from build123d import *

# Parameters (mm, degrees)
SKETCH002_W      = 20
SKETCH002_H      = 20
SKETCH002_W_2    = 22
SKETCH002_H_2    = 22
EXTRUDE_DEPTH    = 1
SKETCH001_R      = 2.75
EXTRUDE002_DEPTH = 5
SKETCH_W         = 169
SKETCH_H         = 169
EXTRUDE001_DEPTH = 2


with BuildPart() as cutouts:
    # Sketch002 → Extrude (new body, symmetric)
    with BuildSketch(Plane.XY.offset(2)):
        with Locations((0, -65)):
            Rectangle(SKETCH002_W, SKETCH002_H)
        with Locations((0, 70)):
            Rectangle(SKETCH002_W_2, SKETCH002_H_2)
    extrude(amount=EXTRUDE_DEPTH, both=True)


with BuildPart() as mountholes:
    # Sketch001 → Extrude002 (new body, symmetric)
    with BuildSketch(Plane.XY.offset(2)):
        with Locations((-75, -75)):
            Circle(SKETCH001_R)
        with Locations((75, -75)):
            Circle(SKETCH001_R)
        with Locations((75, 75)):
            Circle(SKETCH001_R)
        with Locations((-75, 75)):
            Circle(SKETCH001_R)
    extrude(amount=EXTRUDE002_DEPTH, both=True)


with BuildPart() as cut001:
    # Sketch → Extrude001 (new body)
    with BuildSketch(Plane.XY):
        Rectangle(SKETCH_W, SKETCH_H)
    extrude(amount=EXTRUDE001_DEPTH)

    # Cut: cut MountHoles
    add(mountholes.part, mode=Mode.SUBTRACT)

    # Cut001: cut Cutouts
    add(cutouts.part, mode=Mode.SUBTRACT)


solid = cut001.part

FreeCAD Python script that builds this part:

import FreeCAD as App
import Part
import Sketcher
from FreeCAD import Vector

doc = App.newDocument("Part")
body = doc.addObject("PartDesign::Body", "Body")
body.AllowCompound = True

# Sketch on XY plane
sketch1 = body.newObject("Sketcher::SketchObject", "Sketch")
sketch1.AttachmentSupport = (doc.getObject("XY_Plane"), [""])
sketch1.MapMode = "FlatFace"
sketch1.AttachmentOffset = App.Placement(Vector(0, 0, 2), App.Rotation())
sketch1.addGeometry([
    Part.LineSegment(Vector(-10, -55, 0), Vector(-10, -75, 0)),  # 0
    Part.LineSegment(Vector(-10, -75, 0), Vector(10, -75, 0)),  # 1
    Part.LineSegment(Vector(10, -75, 0), Vector(10, -55, 0)),  # 2
    Part.LineSegment(Vector(10, -55, 0), Vector(-10, -55, 0)),  # 3
    Part.LineSegment(Vector(-11, 81, 0), Vector(-11, 59, 0)),  # 4
    Part.LineSegment(Vector(-11, 59, 0), Vector(11, 59, 0)),  # 5
    Part.LineSegment(Vector(11, 59, 0), Vector(11, 81, 0)),  # 6
    Part.LineSegment(Vector(11, 81, 0), Vector(-11, 81, 0)),  # 7
], False)
sketch1.addConstraint([
    Sketcher.Constraint("Coincident", 0, 2, 1, 1),
    Sketcher.Constraint("Coincident", 1, 2, 2, 1),
    Sketcher.Constraint("Coincident", 2, 2, 3, 1),
    Sketcher.Constraint("Coincident", 3, 2, 0, 1),
    Sketcher.Constraint("Coincident", 4, 2, 5, 1),
    Sketcher.Constraint("Coincident", 5, 2, 6, 1),
    Sketcher.Constraint("Coincident", 6, 2, 7, 1),
    Sketcher.Constraint("Coincident", 7, 2, 4, 1),
    Sketcher.Constraint("Vertical", 0),
    Sketcher.Constraint("Horizontal", 1),
    Sketcher.Constraint("Vertical", 2),
    Sketcher.Constraint("Horizontal", 3),
    Sketcher.Constraint("Vertical", 4),
    Sketcher.Constraint("Horizontal", 5),
    Sketcher.Constraint("Vertical", 6),
    Sketcher.Constraint("Horizontal", 7),
    Sketcher.Constraint("Equal", 3, 0),
    Sketcher.Constraint("Equal", 7, 4),
    Sketcher.Constraint("DistanceX", 1, 1, 1, 2, 20.0),
    Sketcher.Constraint("DistanceX", 5, 1, 5, 2, 22.0),
    Sketcher.Constraint("DistanceX", 0, 2, -1, 1, 10.0),
    Sketcher.Constraint("DistanceY", 0, 2, -1, 1, 75.0),
    Sketcher.Constraint("DistanceX", 4, 2, -1, 1, 11.0),
    Sketcher.Constraint("DistanceY", -1, 1, 4, 2, 59.0),
])
pad1 = body.newObject("PartDesign::Pad", "Pad")
pad1.Profile = sketch1
pad1.Length = 2
pad1.Midplane = True
body2 = doc.addObject("PartDesign::Body", "Body001")
body2.AllowCompound = True

# Sketch on XY plane
sketch2 = body2.newObject("Sketcher::SketchObject", "Sketch001")
sketch2.AttachmentSupport = (doc.getObject("XY_Plane001"), [""])
sketch2.MapMode = "FlatFace"
sketch2.AttachmentOffset = App.Placement(Vector(0, 0, 2), App.Rotation())
sketch2.addGeometry([
    Part.Circle(Vector(-75, -75, 0), Vector(0, 0, 1), 2.8),
    Part.Circle(Vector(75, -75, 0), Vector(0, 0, 1), 2.8),
    Part.Circle(Vector(75, 75, 0), Vector(0, 0, 1), 2.8),
    Part.Circle(Vector(-75, 75, 0), Vector(0, 0, 1), 2.8),
], False)
sketch2.addConstraint([
    Sketcher.Constraint("Equal", 0, 1),
    Sketcher.Constraint("Equal", 1, 2),
    Sketcher.Constraint("Equal", 2, 3),
    Sketcher.Constraint("Symmetric", 0, 3, 2, 3, -1, 1),
    Sketcher.Constraint("Symmetric", 1, 3, 3, 3, -1, 1),
    Sketcher.Constraint("Symmetric", 0, 3, 1, 3, -2),
    Sketcher.Constraint("Diameter", 0, 5.5),
    Sketcher.Constraint("DistanceX", 0, 3, -1, 1, 75.0),
    Sketcher.Constraint("DistanceY", 0, 3, -1, 1, 75.0),
])
pad2 = body2.newObject("PartDesign::Pad", "Pad001")
pad2.Profile = sketch2
pad2.Length = 10
pad2.Midplane = True
body3 = doc.addObject("PartDesign::Body", "Body002")

# Sketch on XY plane
sketch3 = body3.newObject("Sketcher::SketchObject", "Sketch002")
sketch3.AttachmentSupport = (doc.getObject("XY_Plane002"), [""])
sketch3.MapMode = "FlatFace"
sketch3.addGeometry([
    Part.LineSegment(Vector(-84, 84, 0), Vector(-84, -84, 0)),
    Part.LineSegment(Vector(-84, -84, 0), Vector(84, -84, 0)),
    Part.LineSegment(Vector(84, -84, 0), Vector(84, 84, 0)),
    Part.LineSegment(Vector(84, 84, 0), Vector(-84, 84, 0)),
], False)
sketch3.addConstraint([
    Sketcher.Constraint("Coincident", 0, 2, 1, 1),
    Sketcher.Constraint("Coincident", 1, 2, 2, 1),
    Sketcher.Constraint("Coincident", 2, 2, 3, 1),
    Sketcher.Constraint("Coincident", 3, 2, 0, 1),
    Sketcher.Constraint("Vertical", 0),
    Sketcher.Constraint("Horizontal", 1),
    Sketcher.Constraint("Vertical", 2),
    Sketcher.Constraint("Horizontal", 3),
    Sketcher.Constraint("Symmetric", 0, 2, 2, 2, -1, 1),
    Sketcher.Constraint("Equal", 3, 0),
    Sketcher.Constraint("DistanceX", 1, 1, 1, 2, 169.0),
])
pad3 = body3.newObject("PartDesign::Pad", "Pad002")
pad3.Profile = sketch3
pad3.Length = 2
doc.recompute()

boolean = body3.newObject("PartDesign::Boolean", "Boolean")
boolean.Type = "Cut"
boolean.addObjects([body2])
doc.recompute()

boolean2 = body3.newObject("PartDesign::Boolean", "Boolean001")
boolean2.Type = "Cut"
boolean2.addObjects([body])

doc.recompute()
